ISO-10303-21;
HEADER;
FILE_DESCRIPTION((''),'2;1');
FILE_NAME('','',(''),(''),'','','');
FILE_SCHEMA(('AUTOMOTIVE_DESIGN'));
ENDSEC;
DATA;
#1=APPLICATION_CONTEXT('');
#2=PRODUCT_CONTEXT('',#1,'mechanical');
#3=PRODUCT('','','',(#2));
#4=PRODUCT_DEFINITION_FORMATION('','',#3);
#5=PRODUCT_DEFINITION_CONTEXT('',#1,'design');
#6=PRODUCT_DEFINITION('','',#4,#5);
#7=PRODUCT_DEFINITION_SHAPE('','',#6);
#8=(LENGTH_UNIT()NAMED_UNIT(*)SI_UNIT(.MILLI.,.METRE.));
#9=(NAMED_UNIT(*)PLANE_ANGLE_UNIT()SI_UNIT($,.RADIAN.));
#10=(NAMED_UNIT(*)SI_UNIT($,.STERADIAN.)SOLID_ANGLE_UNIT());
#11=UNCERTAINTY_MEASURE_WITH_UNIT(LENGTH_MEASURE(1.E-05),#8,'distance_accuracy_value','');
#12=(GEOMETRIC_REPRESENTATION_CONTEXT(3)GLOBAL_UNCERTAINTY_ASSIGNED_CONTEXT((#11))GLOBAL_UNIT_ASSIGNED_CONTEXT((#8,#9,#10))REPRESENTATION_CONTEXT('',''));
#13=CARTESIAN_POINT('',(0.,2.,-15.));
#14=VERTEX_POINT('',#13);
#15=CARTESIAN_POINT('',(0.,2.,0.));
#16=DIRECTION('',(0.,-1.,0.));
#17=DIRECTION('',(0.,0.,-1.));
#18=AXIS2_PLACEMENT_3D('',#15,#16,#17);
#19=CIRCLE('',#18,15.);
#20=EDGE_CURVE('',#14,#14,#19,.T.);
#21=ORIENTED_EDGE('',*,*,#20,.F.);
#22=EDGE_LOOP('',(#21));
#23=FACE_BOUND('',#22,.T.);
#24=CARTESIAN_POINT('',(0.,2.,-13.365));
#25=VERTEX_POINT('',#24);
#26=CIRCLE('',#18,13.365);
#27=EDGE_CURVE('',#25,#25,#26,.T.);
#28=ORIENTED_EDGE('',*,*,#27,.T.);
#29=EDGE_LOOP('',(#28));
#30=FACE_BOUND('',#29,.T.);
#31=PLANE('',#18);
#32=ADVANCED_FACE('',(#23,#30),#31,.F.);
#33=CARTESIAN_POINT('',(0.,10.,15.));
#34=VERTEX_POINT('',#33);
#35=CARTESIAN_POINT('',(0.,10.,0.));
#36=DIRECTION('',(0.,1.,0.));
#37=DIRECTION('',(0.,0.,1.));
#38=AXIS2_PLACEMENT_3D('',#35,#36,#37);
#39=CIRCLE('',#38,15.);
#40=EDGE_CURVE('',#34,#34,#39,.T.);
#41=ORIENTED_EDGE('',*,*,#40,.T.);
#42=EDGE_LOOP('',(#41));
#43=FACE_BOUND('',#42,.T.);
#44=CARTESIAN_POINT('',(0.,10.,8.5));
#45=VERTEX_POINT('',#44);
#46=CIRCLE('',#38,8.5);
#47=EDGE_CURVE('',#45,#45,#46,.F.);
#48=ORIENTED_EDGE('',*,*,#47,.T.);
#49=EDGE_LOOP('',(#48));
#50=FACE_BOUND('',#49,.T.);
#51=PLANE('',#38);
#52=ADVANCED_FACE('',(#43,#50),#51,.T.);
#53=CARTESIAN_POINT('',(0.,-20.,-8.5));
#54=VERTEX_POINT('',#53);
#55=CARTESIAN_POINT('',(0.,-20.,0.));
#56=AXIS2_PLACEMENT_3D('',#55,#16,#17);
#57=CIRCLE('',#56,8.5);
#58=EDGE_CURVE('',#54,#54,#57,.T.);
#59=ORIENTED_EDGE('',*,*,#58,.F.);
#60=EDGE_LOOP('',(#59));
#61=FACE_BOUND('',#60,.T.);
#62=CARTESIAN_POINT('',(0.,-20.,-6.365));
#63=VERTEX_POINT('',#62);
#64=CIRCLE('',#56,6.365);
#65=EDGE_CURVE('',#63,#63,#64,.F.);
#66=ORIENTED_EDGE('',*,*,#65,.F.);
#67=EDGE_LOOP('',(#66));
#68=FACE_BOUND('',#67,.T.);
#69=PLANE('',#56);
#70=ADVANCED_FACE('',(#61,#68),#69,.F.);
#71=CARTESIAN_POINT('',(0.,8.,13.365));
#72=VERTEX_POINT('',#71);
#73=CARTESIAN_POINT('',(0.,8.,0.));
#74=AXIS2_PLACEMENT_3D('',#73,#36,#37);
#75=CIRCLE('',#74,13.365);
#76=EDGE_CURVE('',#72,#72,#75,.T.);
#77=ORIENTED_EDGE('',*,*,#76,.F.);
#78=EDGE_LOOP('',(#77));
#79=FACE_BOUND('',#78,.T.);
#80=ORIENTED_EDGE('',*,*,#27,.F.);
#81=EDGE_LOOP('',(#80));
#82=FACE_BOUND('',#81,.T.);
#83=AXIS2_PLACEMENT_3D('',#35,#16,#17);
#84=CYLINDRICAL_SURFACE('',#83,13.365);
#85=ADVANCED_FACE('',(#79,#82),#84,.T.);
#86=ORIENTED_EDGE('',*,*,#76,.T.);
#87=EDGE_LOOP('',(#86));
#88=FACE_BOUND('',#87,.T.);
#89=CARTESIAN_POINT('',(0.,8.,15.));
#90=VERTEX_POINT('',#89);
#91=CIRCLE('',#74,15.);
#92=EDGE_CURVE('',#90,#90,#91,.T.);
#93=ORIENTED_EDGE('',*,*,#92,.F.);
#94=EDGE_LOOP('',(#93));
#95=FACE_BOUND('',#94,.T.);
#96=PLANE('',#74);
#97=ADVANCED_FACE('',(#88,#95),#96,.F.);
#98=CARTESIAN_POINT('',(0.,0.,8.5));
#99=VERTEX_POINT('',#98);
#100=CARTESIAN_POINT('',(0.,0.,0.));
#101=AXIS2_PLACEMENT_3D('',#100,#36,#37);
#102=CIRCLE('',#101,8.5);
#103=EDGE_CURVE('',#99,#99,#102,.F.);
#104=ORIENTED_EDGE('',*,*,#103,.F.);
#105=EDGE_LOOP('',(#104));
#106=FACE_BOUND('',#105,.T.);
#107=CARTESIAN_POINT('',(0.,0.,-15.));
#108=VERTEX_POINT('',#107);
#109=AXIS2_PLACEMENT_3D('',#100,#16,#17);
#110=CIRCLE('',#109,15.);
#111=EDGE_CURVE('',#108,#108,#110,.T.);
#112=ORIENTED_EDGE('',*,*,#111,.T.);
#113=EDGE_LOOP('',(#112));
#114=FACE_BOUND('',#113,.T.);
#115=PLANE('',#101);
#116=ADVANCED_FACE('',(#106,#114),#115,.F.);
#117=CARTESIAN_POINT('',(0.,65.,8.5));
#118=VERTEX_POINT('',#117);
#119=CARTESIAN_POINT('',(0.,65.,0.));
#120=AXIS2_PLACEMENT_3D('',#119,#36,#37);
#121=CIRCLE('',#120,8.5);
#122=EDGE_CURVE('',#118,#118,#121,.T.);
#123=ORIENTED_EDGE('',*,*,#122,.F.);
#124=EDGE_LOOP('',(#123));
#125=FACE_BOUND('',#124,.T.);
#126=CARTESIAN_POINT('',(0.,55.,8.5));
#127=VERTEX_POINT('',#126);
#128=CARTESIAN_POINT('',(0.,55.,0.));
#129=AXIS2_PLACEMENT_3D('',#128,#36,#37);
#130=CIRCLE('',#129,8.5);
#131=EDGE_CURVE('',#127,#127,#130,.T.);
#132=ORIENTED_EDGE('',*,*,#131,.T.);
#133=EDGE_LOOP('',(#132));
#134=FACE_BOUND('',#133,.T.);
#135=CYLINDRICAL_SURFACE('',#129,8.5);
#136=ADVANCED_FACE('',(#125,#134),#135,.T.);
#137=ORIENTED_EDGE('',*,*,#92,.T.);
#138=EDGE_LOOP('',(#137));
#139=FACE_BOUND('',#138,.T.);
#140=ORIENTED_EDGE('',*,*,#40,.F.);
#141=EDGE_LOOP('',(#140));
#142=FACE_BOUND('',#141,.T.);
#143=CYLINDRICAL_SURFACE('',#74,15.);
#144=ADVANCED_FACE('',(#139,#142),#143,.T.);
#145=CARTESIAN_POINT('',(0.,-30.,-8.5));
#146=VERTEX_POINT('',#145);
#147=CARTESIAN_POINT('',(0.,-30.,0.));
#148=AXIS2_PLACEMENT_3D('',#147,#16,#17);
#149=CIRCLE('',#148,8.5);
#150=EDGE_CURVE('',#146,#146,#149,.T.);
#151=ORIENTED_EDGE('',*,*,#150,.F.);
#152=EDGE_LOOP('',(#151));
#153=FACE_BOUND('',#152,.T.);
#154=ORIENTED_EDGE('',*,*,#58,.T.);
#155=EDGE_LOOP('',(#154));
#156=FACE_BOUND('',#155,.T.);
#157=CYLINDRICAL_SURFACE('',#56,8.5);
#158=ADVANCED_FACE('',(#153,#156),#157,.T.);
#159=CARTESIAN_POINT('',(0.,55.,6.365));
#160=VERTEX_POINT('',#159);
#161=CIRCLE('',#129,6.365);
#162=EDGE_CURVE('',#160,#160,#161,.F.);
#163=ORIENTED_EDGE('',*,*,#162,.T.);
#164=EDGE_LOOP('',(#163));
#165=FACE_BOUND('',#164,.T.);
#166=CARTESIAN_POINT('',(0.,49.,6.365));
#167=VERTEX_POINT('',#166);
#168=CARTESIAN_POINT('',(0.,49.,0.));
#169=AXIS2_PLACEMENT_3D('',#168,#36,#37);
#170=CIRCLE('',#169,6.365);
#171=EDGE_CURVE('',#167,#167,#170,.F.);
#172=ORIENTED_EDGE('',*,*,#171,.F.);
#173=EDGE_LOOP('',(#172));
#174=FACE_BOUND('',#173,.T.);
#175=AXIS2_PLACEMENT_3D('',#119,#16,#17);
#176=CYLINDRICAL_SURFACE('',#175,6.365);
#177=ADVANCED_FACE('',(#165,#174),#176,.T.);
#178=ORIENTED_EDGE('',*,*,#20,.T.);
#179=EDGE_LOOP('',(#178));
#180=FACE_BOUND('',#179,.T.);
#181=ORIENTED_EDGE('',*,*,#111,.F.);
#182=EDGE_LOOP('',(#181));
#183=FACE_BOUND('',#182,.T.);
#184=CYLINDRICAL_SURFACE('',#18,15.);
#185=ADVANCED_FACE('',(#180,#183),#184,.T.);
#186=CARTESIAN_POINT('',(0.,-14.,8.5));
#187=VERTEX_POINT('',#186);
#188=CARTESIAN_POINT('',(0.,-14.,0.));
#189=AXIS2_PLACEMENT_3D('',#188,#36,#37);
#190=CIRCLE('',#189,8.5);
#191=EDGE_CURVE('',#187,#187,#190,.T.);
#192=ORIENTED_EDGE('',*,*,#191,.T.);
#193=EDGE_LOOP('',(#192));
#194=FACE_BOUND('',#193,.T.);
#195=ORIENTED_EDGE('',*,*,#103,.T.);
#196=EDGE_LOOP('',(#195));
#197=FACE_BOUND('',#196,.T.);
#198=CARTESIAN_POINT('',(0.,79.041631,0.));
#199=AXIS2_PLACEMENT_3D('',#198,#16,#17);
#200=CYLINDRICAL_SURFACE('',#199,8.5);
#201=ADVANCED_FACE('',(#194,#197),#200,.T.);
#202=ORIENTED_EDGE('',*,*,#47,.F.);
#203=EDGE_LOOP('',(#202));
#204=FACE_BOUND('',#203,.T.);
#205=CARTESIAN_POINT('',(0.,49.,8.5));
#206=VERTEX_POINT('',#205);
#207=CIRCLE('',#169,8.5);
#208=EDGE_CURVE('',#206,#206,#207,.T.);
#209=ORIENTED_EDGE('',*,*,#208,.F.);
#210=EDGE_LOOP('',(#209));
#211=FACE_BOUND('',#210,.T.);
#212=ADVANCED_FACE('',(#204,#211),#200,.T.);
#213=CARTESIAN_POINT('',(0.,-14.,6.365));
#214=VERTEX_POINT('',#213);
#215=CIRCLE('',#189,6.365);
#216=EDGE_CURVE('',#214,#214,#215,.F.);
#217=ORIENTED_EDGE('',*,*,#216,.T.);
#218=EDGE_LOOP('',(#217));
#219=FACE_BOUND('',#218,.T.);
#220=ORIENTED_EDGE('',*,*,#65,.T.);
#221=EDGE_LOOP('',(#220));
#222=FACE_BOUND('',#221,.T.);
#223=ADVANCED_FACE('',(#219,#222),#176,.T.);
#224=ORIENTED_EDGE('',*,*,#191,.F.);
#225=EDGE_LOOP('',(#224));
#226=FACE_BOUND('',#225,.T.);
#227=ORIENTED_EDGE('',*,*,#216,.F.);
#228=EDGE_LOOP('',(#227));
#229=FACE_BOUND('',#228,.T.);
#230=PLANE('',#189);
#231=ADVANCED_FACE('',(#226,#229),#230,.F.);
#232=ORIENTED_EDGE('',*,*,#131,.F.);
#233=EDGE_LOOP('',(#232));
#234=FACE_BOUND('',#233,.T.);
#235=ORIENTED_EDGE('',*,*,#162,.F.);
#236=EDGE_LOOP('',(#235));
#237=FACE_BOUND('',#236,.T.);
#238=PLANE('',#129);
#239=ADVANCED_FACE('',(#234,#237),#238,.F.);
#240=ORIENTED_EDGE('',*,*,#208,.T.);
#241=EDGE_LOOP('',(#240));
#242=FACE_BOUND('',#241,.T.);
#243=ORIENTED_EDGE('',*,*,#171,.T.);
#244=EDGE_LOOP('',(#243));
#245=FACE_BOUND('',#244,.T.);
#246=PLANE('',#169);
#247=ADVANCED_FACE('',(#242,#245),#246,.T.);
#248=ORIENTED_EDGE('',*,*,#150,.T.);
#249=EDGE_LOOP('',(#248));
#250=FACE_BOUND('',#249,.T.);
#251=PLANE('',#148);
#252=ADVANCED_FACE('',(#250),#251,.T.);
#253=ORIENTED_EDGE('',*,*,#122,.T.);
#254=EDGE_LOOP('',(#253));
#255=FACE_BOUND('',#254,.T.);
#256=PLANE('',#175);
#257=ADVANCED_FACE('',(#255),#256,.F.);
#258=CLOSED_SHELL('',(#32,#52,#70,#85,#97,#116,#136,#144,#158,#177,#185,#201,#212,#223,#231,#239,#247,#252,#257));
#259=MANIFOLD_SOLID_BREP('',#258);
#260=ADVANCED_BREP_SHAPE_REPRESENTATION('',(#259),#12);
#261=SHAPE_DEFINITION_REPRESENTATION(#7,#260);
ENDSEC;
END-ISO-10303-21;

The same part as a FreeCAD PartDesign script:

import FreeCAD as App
import Part
import Sketcher

doc = App.newDocument("Part")
body = doc.addObject("PartDesign::Body", "Body")

# Sketch on XZ plane
sketch1 = body.newObject("Sketcher::SketchObject", "Sketch")
sketch1.AttachmentSupport = (doc.getObject("XZ_Plane"), [""])
sketch1.MapMode = "FlatFace"
sketch1.addGeometry(Part.Circle(App.Vector(0, 0, 0), App.Vector(0, 0, 1), 13), False)
sketch1.addConstraint([
    Sketcher.Constraint("Coincident", 0, 3, -1, 1),
    Sketcher.Constraint("Diameter", 0, 26.73),
])
pad1 = body.newObject("PartDesign::Pad", "Pad")
pad1.Profile = sketch1
pad1.Length = 10
pad1.Reversed = True

# Sketch on XZ plane
sketch2 = body.newObject("Sketcher::SketchObject", "Sketch001")
sketch2.AttachmentSupport = (doc.getObject("XZ_Plane"), [""])
sketch2.MapMode = "FlatFace"
sketch2.AttachmentOffset = App.Placement(App.Vector(0, 0, -10), App.Rotation())
sketch2.addGeometry(Part.Circle(App.Vector(0, 0, 0), App.Vector(0, 0, 1), 15), False)
sketch2.addConstraint([
    Sketcher.Constraint("Coincident", 0, 3, -1, 1),
    Sketcher.Constraint("Diameter", 0, 30.0),
])
pad2 = body.newObject("PartDesign::Pad", "Pad001")
pad2.Profile = sketch2
pad2.Length = 2

# Sketch on XZ plane
sketch3 = body.newObject("Sketcher::SketchObject", "Sketch002")
sketch3.AttachmentSupport = (doc.getObject("XZ_Plane"), [""])
sketch3.MapMode = "FlatFace"
sketch3.AttachmentOffset = App.Placement(App.Vector(0, 0, -2), App.Rotation())
sketch3.addGeometry(Part.Circle(App.Vector(0, 0, 0), App.Vector(0, 0, 1), 15), False)
sketch3.addConstraint([
    Sketcher.Constraint("Coincident", 0, 3, -1, 1),
    Sketcher.Constraint("Diameter", 0, 30.0),
])
pad3 = body.newObject("PartDesign::Pad", "Pad002")
pad3.Profile = sketch3
pad3.Length = 2

# Sketch on XZ plane
sketch4 = body.newObject("Sketcher::SketchObject", "Sketch003")
sketch4.AttachmentSupport = (doc.getObject("XZ_Plane"), [""])
sketch4.MapMode = "FlatFace"
sketch4.addGeometry(Part.Circle(App.Vector(0, 0, 0), App.Vector(0, 0, 1), 6), False)
sketch4.addConstraint([
    Sketcher.Constraint("Coincident", 0, 3, -1, 1),
    Sketcher.Constraint("Diameter", 0, 12.73),
])
pad4 = body.newObject("PartDesign::Pad", "Pad003")
pad4.Profile = sketch4
pad4.Type = "TwoLengths"
pad4.Length = 30
pad4.Length2 = 65

# Sketch on XZ plane
sketch5 = body.newObject("Sketcher::SketchObject", "Sketch004")
sketch5.AttachmentSupport = (doc.getObject("XZ_Plane"), [""])
sketch5.MapMode = "FlatFace"
sketch5.AttachmentOffset = App.Placement(App.Vector(0, 0, 30), App.Rotation())
sketch5.addGeometry(Part.Circle(App.Vector(0, 0, 0), App.Vector(0, 0, 1), 8), False)
sketch5.addConstraint([
    Sketcher.Constraint("Coincident", 0, 3, -1, 1),
    Sketcher.Constraint("Diameter", 0, 17.0),
])
pad5 = body.newObject("PartDesign::Pad", "Pad004")
pad5.Profile = sketch5
pad5.Length = 10
pad5.Reversed = True

# Sketch on XZ plane
sketch6 = body.newObject("Sketcher::SketchObject", "Sketch005")
sketch6.AttachmentSupport = (doc.getObject("XZ_Plane"), [""])
sketch6.MapMode = "FlatFace"
sketch6.AttachmentOffset = App.Placement(App.Vector(0, 0, -55), App.Rotation())
sketch6.addGeometry(Part.Circle(App.Vector(0, 0, 0), App.Vector(0, 0, 1), 8), False)
sketch6.addConstraint([
    Sketcher.Constraint("Coincident", 0, 3, -1, 1),
    Sketcher.Constraint("Diameter", 0, 17.0),
])
pad6 = body.newObject("PartDesign::Pad", "Pad005")
pad6.Profile = sketch6
pad6.Length = 10
pad6.Reversed = True

# Sketch on XZ plane
sketch7 = body.newObject("Sketcher::SketchObject", "Sketch006")
sketch7.AttachmentSupport = (doc.getObject("XZ_Plane"), [""])
sketch7.MapMode = "FlatFace"
sketch7.AttachmentOffset = App.Placement(App.Vector(0, 0, 14), App.Rotation())
sketch7.addGeometry(Part.Circle(App.Vector(0, 0, 0), App.Vector(0, 0, 1), 8), False)
sketch7.addConstraint([
    Sketcher.Constraint("Coincident", 0, 3, -1, 1),
    Sketcher.Constraint("Diameter", 0, 17.0),
])
pad7 = body.newObject("PartDesign::Pad", "Pad006")
pad7.Profile = sketch7
pad7.Length = 63
pad7.Reversed = True

doc.recompute()
